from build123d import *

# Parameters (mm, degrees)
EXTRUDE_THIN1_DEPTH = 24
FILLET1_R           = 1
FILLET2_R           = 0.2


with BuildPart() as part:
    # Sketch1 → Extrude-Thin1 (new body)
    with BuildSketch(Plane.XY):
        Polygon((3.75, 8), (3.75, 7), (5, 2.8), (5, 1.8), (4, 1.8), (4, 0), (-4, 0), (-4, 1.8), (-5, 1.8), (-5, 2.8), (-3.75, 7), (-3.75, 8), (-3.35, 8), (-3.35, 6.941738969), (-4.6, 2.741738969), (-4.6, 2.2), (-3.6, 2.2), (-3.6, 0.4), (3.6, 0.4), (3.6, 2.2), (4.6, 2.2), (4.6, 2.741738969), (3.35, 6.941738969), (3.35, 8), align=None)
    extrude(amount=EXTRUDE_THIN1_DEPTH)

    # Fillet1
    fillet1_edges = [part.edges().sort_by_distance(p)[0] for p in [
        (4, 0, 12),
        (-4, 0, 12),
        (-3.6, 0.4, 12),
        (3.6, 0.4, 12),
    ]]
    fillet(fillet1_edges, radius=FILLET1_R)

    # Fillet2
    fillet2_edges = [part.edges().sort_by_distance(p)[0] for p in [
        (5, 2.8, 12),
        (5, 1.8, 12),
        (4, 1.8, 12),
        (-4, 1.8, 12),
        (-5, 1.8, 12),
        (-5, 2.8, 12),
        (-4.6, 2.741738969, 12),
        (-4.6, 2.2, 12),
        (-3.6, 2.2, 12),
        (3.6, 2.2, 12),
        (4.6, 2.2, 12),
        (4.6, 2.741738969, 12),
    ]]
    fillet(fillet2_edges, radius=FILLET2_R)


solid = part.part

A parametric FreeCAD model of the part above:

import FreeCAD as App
import Part
import Sketcher
from FreeCAD import Vector


def edges_at(feature, points):
    """Names of the edges that pass closest to the given points."""
    edges = feature.Shape.Edges
    near = lambda p: min(range(len(edges)), key=lambda i: edges[i].distToShape(Part.Vertex(*p))[0])
    return sorted({f"Edge{near(p) + 1}" for p in points})


def add_polygon(sketch, points):
    """Adds a closed chain of lines whose ends are joined by coincident constraints."""
    first, n = sketch.GeometryCount, len(points)
    for a, b in zip(points, points[1:] + points[:1]):
        sketch.addGeometry(Part.LineSegment(App.Vector(*a, 0), App.Vector(*b, 0)), False)
    for i in range(n):
        sketch.addConstraint(Sketcher.Constraint("Coincident", first + i, 2, first + (i + 1) % n, 1))

doc = App.newDocument("Part")
body = doc.addObject("PartDesign::Body", "Body")

# Sketch on XY plane
sketch1 = body.newObject("Sketcher::SketchObject", "Sketch")
sketch1.AttachmentSupport = (doc.getObject("XY_Plane"), [""])
sketch1.MapMode = "FlatFace"
add_polygon(sketch1, [(3.75, 7), (3.75, 8), (3.35, 8), (3.35, 6.941739), (4.6, 2.741739), (4.6, 2.2), (3.6, 2.2), (3.6, 0.4), (-3.6, 0.4), (-3.6, 2.2), (-4.6, 2.2), (-4.6, 2.741739), (-3.35, 6.941739), (-3.35, 8), (-3.75, 8), (-3.75, 7), (-5, 2.8), (-5, 1.8), (-4, 1.8), (-4, 0), (4, 0), (4, 1.8), (5, 1.8), (5, 2.8)])  # lines 0-23
sketch1.addConstraint(Sketcher.Constraint("Vertical", 0))
sketch1.addConstraint(Sketcher.Constraint("Horizontal", 1))
sketch1.addConstraint(Sketcher.Constraint("Vertical", 2))
sketch1.addConstraint(Sketcher.Constraint("Vertical", 4))
sketch1.addConstraint(Sketcher.Constraint("Horizontal", 5))
sketch1.addConstraint(Sketcher.Constraint("Vertical", 6))
sketch1.addConstraint(Sketcher.Constraint("Horizontal", 7))
sketch1.addConstraint(Sketcher.Constraint("Vertical", 8))
sketch1.addConstraint(Sketcher.Constraint("Horizontal", 9))
sketch1.addConstraint(Sketcher.Constraint("Vertical", 10))
sketch1.addConstraint(Sketcher.Constraint("Vertical", 12))
sketch1.addConstraint(Sketcher.Constraint("Horizontal", 13))
sketch1.addConstraint(Sketcher.Constraint("Vertical", 14))
sketch1.addConstraint(Sketcher.Constraint("Vertical", 16))
sketch1.addConstraint(Sketcher.Constraint("Horizontal", 17))
sketch1.addConstraint(Sketcher.Constraint("Vertical", 18))
sketch1.addConstraint(Sketcher.Constraint("Horizontal", 19))
sketch1.addConstraint(Sketcher.Constraint("Vertical", 20))
sketch1.addConstraint(Sketcher.Constraint("Horizontal", 21))
sketch1.addConstraint(Sketcher.Constraint("Vertical", 22))
sketch1.addConstraint(Sketcher.Constraint("Symmetric", 18, 2, 19, 2, -1, 1))
sketch1.addConstraint(Sketcher.Constraint("Symmetric", 5, 2, 8, 2, -2))
sketch1.addConstraint(Sketcher.Constraint("Symmetric", 3, 2, 10, 2, -2))
sketch1.addConstraint(Sketcher.Constraint("Symmetric", 2, 2, 11, 2, -2))
sketch1.addConstraint(Sketcher.Constraint("Symmetric", 0, 2, 13, 2, -2))
sketch1.addConstraint(Sketcher.Constraint("Symmetric", 16, 2, 21, 2, -2))
sketch1.addConstraint(Sketcher.Constraint("Parallel", 11, 15))
sketch1.addConstraint(Sketcher.Constraint("Parallel", 3, 23))
sketch1.addConstraint(Sketcher.Constraint("Horizontal", 15, 2, 22, 2))
sketch1.addConstraint(Sketcher.Constraint("Equal", 9, 17))
sketch1.addConstraint(Sketcher.Constraint("Equal", 21, 0))
sketch1.addConstraint(Sketcher.Constraint("Equal", 14, 16))
sketch1.addConstraint(Sketcher.Constraint("Equal", 8, 18))
sketch1.addConstraint(Sketcher.Constraint("Equal", 11, 15))
sketch1.addConstraint(Sketcher.Constraint("DistanceX", 5, 2, 5, 1, 1.0))
sketch1.addConstraint(Sketcher.Constraint("DistanceX", 19, 1, 19, 2, 8.0))
sketch1.addConstraint(Sketcher.Constraint("DistanceX", 1, 2, 1, 1, 0.4))
sketch1.addConstraint(Sketcher.Constraint("DistanceY", 6, 2, 6, 1, 1.8))
sketch1.addConstraint(Sketcher.Constraint("DistanceY", -1, 1, 0, 2, 8.0))
sketch1.addConstraint(Sketcher.Constraint("DistanceY", -1, 1, 4, 2, 2.2))
sketch1.addConstraint(Sketcher.Constraint("DistanceX", 11, 2, 2, 2, 6.7))
sketch1.addConstraint(Sketcher.Constraint("DistanceY", 2, 2, 2, 1, 1.058261))
pad1 = body.newObject("PartDesign::Pad", "Pad")
pad1.Profile = sketch1
pad1.Length = 24
doc.recompute()

fillet = body.newObject("PartDesign::Fillet", "Fillet")
fillet.Base = (pad1, edges_at(pad1, [
    (4, 0, 12),
    (-4, 0, 12),
    (-3.6, 0.4, 12),
    (3.6, 0.4, 12),
]))
fillet.Radius = 1
doc.recompute()

fillet2 = body.newObject("PartDesign::Fillet", "Fillet001")
fillet2.Base = (fillet, edges_at(fillet, [
    (5, 2.8, 12),
    (5, 1.8, 12),
    (4, 1.8, 12),
    (-4, 1.8, 12),
    (-5, 1.8, 12),
    (-5, 2.8, 12),
    (-4.6, 2.742, 12),
    (-4.6, 2.2, 12),
    (-3.6, 2.2, 12),
    (3.6, 2.2, 12),
    (4.6, 2.2, 12),
    (4.6, 2.742, 12),
]))
fillet2.Radius = 0.2

doc.recompute()
